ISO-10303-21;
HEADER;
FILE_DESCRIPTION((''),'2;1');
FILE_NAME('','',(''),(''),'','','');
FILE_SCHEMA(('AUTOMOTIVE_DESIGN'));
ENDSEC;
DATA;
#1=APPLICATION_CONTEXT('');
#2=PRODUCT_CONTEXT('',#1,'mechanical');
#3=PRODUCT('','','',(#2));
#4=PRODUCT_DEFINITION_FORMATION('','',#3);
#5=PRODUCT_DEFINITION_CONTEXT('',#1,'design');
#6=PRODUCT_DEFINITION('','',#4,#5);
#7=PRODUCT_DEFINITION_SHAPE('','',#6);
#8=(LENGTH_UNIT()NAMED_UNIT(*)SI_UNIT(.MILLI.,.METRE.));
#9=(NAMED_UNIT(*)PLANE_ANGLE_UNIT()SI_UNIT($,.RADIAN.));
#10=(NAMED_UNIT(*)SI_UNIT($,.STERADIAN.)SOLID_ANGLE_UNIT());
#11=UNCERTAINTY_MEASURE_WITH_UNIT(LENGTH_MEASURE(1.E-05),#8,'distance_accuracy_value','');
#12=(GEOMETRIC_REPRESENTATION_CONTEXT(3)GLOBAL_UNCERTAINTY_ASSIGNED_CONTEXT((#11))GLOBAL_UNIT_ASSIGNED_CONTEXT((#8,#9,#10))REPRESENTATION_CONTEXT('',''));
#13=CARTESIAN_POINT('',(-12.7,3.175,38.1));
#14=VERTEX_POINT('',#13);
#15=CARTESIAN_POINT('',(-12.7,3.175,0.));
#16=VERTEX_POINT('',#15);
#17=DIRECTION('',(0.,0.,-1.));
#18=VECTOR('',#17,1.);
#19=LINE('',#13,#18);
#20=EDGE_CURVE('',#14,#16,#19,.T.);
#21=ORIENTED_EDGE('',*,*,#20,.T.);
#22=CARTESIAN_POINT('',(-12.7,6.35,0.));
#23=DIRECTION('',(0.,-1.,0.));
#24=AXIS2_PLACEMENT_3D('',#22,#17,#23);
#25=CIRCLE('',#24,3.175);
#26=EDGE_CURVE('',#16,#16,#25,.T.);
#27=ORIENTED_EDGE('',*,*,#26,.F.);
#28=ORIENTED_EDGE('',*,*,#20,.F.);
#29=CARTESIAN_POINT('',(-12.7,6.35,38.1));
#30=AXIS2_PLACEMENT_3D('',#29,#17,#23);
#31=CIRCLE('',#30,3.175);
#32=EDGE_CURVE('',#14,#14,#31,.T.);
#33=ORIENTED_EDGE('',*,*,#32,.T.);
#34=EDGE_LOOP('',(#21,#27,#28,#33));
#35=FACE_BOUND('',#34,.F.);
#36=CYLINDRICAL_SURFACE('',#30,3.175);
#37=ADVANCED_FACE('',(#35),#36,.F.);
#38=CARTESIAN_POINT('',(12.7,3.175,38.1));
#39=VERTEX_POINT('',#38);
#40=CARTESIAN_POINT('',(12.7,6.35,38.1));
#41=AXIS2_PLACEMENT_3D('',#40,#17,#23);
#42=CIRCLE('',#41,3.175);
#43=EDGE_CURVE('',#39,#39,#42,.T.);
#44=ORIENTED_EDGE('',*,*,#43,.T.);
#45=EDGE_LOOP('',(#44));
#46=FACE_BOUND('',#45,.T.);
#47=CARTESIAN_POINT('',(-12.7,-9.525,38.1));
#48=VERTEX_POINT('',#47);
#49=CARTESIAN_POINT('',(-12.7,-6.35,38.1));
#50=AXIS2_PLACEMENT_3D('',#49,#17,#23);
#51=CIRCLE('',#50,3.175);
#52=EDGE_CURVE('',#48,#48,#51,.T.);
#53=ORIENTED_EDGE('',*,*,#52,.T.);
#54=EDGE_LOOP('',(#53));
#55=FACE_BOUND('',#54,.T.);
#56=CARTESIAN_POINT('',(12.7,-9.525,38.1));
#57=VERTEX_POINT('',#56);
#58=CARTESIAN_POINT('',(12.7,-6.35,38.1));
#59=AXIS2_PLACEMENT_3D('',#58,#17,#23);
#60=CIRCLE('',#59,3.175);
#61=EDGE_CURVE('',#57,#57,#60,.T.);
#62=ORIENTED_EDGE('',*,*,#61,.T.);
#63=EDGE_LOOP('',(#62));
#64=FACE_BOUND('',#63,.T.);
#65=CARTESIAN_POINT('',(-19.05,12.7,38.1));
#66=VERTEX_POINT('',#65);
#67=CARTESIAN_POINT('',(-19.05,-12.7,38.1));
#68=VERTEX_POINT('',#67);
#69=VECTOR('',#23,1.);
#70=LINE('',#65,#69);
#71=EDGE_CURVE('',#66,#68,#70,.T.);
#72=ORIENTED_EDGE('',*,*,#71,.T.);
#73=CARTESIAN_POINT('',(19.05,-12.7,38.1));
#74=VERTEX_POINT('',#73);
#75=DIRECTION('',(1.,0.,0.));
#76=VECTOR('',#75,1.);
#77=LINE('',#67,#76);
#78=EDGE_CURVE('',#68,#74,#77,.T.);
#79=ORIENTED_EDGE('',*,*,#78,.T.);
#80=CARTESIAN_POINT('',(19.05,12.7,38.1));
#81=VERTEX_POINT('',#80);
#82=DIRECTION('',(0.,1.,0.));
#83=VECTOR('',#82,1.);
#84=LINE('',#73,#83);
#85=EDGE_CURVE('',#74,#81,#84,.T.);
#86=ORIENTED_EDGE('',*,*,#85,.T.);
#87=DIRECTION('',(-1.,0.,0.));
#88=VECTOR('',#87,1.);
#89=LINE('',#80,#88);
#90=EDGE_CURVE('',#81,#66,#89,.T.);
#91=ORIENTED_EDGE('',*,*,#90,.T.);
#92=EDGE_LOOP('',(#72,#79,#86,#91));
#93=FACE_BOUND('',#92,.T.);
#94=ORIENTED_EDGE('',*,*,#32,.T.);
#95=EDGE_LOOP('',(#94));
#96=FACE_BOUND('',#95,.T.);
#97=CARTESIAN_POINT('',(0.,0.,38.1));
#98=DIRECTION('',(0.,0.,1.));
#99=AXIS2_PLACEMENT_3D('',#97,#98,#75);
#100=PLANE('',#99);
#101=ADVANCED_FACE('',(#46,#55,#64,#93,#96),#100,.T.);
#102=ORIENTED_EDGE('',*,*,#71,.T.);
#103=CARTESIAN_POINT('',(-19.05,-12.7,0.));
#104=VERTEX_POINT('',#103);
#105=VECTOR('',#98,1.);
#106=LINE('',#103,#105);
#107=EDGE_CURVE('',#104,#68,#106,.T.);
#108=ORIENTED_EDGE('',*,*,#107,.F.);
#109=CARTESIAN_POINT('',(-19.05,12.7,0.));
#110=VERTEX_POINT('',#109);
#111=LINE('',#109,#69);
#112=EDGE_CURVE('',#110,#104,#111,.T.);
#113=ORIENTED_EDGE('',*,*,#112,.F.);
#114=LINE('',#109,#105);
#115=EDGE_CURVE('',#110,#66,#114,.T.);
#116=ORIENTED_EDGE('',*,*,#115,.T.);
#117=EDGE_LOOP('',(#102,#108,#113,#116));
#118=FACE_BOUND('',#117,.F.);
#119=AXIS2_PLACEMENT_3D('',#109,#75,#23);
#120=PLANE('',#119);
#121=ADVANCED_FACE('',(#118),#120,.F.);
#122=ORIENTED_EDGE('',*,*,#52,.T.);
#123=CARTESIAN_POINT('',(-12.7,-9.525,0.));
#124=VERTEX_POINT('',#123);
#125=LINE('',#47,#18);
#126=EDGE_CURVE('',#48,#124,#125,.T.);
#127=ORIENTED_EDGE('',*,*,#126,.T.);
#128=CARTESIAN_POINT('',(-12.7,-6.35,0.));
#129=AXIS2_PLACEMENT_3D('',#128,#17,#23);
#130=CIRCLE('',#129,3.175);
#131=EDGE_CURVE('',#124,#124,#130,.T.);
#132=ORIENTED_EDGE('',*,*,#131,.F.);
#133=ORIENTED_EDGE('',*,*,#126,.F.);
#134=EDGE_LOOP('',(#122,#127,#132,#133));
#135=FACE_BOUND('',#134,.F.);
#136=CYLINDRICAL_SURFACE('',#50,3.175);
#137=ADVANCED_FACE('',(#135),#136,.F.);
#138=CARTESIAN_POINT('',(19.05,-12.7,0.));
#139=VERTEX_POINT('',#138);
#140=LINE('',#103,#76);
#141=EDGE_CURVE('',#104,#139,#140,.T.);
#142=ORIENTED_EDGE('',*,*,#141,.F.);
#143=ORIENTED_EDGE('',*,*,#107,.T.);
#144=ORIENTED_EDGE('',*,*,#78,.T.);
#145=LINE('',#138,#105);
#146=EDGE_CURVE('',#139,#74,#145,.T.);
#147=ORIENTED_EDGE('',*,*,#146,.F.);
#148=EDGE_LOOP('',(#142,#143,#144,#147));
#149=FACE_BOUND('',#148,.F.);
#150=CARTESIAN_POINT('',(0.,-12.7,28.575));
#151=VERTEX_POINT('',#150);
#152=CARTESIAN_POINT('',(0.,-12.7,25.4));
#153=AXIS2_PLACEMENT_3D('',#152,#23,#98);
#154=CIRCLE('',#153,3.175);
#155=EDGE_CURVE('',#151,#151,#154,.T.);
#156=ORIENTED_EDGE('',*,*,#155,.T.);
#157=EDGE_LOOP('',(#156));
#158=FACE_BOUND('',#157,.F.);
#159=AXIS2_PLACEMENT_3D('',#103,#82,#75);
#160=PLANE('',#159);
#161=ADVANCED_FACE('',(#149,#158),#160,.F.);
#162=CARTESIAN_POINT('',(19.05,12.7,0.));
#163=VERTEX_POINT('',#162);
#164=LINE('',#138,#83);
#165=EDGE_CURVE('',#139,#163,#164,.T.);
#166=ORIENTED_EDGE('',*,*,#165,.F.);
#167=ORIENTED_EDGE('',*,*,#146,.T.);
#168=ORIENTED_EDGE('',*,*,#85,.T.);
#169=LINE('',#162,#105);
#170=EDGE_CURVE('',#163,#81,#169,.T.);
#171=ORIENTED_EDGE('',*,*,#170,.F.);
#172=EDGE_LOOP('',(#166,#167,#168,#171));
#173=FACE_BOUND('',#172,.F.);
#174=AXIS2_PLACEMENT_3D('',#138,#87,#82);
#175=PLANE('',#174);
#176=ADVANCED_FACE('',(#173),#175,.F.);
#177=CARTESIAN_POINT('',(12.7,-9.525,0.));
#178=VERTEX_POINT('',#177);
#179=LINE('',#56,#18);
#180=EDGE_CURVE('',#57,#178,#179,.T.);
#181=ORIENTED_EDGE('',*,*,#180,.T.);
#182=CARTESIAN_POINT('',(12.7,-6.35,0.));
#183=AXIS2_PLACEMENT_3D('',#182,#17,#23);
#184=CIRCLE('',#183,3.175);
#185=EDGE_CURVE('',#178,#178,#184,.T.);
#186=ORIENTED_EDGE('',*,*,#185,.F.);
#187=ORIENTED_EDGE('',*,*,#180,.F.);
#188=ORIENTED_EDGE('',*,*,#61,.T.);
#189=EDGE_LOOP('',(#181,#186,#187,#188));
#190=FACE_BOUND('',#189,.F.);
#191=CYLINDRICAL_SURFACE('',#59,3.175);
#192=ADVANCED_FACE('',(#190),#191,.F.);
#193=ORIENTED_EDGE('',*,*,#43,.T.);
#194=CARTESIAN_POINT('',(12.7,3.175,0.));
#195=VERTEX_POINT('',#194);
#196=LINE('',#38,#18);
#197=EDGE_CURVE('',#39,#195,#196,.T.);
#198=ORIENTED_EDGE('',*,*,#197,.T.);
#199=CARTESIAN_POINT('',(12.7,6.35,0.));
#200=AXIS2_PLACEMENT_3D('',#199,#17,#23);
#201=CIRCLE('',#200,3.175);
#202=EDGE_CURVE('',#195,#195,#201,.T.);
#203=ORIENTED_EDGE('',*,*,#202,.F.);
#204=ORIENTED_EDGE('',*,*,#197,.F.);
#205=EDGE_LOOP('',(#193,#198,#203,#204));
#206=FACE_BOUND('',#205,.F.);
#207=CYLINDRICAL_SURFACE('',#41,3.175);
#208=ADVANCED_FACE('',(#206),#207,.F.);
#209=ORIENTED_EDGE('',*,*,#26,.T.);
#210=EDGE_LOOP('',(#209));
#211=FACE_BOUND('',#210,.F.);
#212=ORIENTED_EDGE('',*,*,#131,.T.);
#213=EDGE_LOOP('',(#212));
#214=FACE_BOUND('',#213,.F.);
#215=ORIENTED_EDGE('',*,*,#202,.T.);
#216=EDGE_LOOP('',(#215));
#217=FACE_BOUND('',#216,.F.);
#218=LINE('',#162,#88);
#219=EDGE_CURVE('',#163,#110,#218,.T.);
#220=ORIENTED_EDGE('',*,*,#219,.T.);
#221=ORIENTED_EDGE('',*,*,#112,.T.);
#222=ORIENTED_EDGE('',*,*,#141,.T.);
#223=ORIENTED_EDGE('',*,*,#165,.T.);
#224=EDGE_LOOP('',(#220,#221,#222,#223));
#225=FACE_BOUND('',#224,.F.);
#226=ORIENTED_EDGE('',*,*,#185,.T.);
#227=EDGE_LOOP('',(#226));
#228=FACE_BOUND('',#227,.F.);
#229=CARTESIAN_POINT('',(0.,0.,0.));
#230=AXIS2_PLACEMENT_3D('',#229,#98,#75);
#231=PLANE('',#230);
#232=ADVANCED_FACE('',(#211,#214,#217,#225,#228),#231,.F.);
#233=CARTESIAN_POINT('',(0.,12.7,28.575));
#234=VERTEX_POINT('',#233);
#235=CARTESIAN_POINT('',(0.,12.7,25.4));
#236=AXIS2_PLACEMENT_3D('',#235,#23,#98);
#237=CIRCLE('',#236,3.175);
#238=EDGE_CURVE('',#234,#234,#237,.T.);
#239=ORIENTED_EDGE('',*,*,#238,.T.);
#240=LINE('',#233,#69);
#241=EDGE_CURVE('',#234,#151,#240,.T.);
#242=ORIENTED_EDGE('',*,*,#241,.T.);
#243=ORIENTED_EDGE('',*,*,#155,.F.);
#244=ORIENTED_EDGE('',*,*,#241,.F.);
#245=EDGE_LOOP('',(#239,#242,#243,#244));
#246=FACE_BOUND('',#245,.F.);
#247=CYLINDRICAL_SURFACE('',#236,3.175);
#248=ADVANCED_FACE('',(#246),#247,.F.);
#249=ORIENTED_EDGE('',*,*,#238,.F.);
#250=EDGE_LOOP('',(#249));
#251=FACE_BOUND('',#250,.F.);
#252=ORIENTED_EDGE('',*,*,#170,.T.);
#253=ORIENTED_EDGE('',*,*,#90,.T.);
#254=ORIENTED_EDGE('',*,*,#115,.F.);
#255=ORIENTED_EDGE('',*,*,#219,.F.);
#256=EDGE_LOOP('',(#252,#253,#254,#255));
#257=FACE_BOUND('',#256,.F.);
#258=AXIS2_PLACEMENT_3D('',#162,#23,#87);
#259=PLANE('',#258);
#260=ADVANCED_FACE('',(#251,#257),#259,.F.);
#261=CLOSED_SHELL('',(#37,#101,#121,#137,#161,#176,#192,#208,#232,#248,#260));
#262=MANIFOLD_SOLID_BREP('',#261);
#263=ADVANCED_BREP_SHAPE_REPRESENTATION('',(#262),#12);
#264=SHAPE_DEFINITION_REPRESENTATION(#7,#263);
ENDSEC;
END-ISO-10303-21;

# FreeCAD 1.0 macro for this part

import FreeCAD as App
import Part
import Sketcher
from FreeCAD import Vector
Q = App.Units.Quantity


def add_polygon(sketch, points):
    """Adds a closed chain of lines whose ends are joined by coincident constraints."""
    first, n = sketch.GeometryCount, len(points)
    for a, b in zip(points, points[1:] + points[:1]):
        sketch.addGeometry(Part.LineSegment(App.Vector(*a, 0), App.Vector(*b, 0)), False)
    for i in range(n):
        sketch.addConstraint(Sketcher.Constraint("Coincident", first + i, 2, first + (i + 1) % n, 1))

doc = App.newDocument("Part")
body = doc.addObject("PartDesign::Body", "Body")

# Sketch on XY plane
sketch1 = doc.addObject("Sketcher::SketchObject", "Sketch")
body.addObject(sketch1)
sketch1.AttachmentSupport = (doc.XY_Plane, [""])
sketch1.MapMode = "FlatFace"
add_polygon(sketch1, [(-19, 13), (-19, -13), (19, -13), (19, 13)])  # lines 0-3
sketch1.addConstraint(Sketcher.Constraint("Vertical", 0))
sketch1.addConstraint(Sketcher.Constraint("Horizontal", 1))
sketch1.addConstraint(Sketcher.Constraint("Vertical", 2))
sketch1.addConstraint(Sketcher.Constraint("Horizontal", 3))
sketch1.addConstraint(Sketcher.Constraint("Symmetric", 0, 2, 2, 2, -1, 1))
sketch1.addConstraint(Sketcher.Constraint("DistanceY", 0, 2, 0, 1, Q("1 in")))
sketch1.addConstraint(Sketcher.Constraint("DistanceX", 1, 1, 1, 2, Q("1.5 in")))
pad1 = doc.addObject("PartDesign::Pad", "Pad")
body.addObject(pad1)
pad1.Profile = sketch1
pad1.Length = Q("1.5 in")

# Sketch on XY plane
sketch2 = doc.addObject("Sketcher::SketchObject", "Sketch001")
body.addObject(sketch2)
sketch2.AttachmentSupport = (doc.XY_Plane, [""])
sketch2.MapMode = "FlatFace"
sketch2.AttachmentOffset = App.Placement(Vector(0, 0, 1.5 * 25.4), App.Rotation())
sketch2.addGeometry(Part.Circle(Vector(12.7, 6.3, 0), Vector(0, 0, 1), 3.2), False)
sketch2.addGeometry(Part.Circle(Vector(-12.7, 6.3, 0), Vector(0, 0, 1), 3.2), False)
sketch2.addGeometry(Part.Circle(Vector(-12.7, -6.3, 0), Vector(0, 0, 1), 3.2), False)
sketch2.addGeometry(Part.Circle(Vector(12.7, -6.3, 0), Vector(0, 0, 1), 3.2), False)
sketch2.addConstraint(Sketcher.Constraint("Equal", 0, 1))
sketch2.addConstraint(Sketcher.Constraint("Equal", 1, 2))
sketch2.addConstraint(Sketcher.Constraint("Equal", 2, 3))
sketch2.addConstraint(Sketcher.Constraint("Symmetric", 0, 3, 2, 3, -1, 1))
sketch2.addConstraint(Sketcher.Constraint("Symmetric", 1, 3, 3, 3, -1, 1))
sketch2.addConstraint(Sketcher.Constraint("Symmetric", 0, 3, 1, 3, -2))
sketch2.addConstraint(Sketcher.Constraint("Diameter", 0, Q("0.25 in")))
sketch2.addConstraint(Sketcher.Constraint("DistanceX", 1, 3, 0, 3, Q("1 in")))
sketch2.addConstraint(Sketcher.Constraint("DistanceY", 2, 3, 1, 3, Q("0.5 in")))
doc.recompute()
hole = doc.addObject("PartDesign::Hole", "Hole")
body.addObject(hole)
hole.Profile = sketch2
hole.ThreadType = "None"
hole.Diameter = Q("0.25 in")
hole.DepthType = "ThroughAll"

# Sketch on XZ plane
sketch3 = doc.addObject("Sketcher::SketchObject", "Sketch002")
body.addObject(sketch3)
sketch3.AttachmentSupport = (doc.XZ_Plane, [""])
sketch3.MapMode = "FlatFace"
sketch3.AttachmentOffset = App.Placement(Vector(0, 0, -0.5 * 25.4), App.Rotation())
sketch3.addGeometry(Part.Circle(Vector(0, 25.4, 0), Vector(0, 0, 1), 3.2), False)
sketch3.addConstraint(Sketcher.Constraint("PointOnObject", 0, 3, -2))
sketch3.addConstraint(Sketcher.Constraint("Diameter", 0, Q("0.25 in")))
sketch3.addConstraint(Sketcher.Constraint("DistanceY", -1, 1, 0, 3, Q("1 in")))
doc.recompute()
hole2 = doc.addObject("PartDesign::Hole", "Hole001")
body.addObject(hole2)
hole2.Profile = sketch3
hole2.ThreadType = "None"
hole2.Diameter = Q("0.25 in")
hole2.DepthType = "ThroughAll"
hole2.Reversed = True

doc.recompute()
